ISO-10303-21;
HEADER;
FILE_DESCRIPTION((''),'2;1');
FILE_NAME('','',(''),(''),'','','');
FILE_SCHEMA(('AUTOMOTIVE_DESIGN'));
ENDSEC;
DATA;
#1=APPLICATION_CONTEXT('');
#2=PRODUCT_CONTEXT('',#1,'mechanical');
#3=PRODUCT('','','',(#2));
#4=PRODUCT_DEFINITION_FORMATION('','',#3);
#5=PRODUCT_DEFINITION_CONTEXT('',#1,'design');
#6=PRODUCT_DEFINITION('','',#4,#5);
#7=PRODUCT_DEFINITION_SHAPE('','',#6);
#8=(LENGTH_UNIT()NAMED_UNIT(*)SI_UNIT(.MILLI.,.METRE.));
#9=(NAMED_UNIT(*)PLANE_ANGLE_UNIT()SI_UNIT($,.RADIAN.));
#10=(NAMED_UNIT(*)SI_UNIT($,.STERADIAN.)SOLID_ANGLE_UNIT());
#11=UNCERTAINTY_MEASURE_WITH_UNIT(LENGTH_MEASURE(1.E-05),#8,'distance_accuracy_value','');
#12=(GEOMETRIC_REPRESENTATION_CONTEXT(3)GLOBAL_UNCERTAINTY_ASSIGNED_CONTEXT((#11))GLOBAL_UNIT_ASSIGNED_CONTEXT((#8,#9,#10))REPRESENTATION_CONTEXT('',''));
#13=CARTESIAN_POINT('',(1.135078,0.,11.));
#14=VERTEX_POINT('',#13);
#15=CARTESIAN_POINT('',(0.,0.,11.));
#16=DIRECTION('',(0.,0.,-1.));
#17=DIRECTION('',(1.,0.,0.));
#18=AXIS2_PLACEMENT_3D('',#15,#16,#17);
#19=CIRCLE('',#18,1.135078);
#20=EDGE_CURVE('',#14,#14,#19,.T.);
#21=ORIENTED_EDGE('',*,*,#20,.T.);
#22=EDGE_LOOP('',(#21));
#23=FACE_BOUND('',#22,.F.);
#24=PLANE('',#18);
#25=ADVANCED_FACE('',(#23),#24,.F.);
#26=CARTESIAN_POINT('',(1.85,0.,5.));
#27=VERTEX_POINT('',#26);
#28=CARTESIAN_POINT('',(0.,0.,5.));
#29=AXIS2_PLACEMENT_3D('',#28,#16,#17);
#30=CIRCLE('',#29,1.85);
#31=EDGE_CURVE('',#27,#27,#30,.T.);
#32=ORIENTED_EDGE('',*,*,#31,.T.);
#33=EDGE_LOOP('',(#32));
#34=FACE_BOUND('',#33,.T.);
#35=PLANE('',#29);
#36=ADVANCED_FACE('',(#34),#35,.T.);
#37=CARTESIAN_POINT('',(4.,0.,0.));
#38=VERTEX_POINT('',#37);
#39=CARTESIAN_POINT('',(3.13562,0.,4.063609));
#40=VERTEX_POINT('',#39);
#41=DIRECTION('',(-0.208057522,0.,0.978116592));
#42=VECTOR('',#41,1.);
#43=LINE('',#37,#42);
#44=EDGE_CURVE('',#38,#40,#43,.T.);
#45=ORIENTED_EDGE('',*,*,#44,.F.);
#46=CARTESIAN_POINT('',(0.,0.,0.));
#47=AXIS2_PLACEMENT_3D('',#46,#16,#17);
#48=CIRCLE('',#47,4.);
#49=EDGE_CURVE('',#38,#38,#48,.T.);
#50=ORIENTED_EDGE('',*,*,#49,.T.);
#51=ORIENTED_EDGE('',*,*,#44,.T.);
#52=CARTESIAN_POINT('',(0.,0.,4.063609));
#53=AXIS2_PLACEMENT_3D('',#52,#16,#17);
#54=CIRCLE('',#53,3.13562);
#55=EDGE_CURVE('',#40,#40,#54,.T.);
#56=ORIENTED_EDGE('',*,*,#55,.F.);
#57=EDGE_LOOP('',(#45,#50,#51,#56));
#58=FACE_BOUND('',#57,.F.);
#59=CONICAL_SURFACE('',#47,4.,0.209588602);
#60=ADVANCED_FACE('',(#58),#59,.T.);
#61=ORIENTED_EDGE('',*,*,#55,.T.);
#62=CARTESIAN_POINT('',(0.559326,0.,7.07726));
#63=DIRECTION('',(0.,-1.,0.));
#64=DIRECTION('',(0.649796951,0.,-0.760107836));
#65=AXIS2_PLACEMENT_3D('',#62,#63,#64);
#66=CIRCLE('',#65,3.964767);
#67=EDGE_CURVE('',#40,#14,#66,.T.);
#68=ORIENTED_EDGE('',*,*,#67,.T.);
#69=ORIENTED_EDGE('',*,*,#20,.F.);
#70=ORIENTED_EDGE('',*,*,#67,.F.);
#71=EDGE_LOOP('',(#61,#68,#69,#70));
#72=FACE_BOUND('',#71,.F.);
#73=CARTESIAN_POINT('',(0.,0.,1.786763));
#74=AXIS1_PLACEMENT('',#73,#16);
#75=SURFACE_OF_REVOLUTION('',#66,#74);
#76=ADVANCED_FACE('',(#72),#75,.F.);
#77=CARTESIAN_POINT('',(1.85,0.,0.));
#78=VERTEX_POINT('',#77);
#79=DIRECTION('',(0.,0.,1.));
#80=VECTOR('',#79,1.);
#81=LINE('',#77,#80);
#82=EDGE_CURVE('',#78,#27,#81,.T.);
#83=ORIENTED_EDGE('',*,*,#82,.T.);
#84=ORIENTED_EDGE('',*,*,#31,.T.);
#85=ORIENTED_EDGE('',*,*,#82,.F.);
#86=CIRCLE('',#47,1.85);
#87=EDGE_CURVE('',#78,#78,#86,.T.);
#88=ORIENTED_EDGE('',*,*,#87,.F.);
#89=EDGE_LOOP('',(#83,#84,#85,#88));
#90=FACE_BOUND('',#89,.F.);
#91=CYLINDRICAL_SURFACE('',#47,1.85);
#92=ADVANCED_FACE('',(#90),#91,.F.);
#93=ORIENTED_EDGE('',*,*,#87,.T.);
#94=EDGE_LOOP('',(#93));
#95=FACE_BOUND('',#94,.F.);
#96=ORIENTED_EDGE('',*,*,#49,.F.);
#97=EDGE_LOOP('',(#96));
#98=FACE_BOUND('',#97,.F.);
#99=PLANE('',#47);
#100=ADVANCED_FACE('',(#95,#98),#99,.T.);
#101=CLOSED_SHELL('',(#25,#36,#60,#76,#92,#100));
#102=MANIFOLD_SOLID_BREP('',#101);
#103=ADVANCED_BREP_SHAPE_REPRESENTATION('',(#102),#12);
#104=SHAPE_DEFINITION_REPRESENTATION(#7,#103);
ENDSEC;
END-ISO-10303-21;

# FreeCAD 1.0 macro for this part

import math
import FreeCAD as App
import Part
import Sketcher

doc = App.newDocument("Part")
body = doc.addObject("PartDesign::Body", "Body")

sketch1 = body.newObject("Sketcher::SketchObject", "Sketch")
sketch1.AttachmentSupport = (doc.getObject("XZ_Plane"), [""])
sketch1.MapMode = "FlatFace"
sketch1.addGeometry([
    Part.LineSegment(App.Vector(0, 11, 0), App.Vector(0, 0, 0)),
    Part.LineSegment(App.Vector(0, 0, 0), App.Vector(4, 0, 0)),
    Part.LineSegment(App.Vector(4, 0, 0), App.Vector(3.1, 4.1, 0)),
    Part.ArcOfCircle(Part.Circle(App.Vector(0.6, 7.1, 0), App.Vector(0, 0, 1), 4), math.radians(-49), math.radians(82)),
    Part.LineSegment(App.Vector(1.1, 11, 0), App.Vector(0, 11, 0)),
], False)
sketch1.addConstraint([
    Sketcher.Constraint("Coincident", 0, 2, 1, 1),
    Sketcher.Constraint("Coincident", 1, 2, 2, 1),
    Sketcher.Constraint("Coincident", 2, 2, 3, 1),
    Sketcher.Constraint("Coincident", 3, 2, 4, 1),
    Sketcher.Constraint("Coincident", 4, 2, 0, 1),
    Sketcher.Constraint("Vertical", 0),
    Sketcher.Constraint("Horizontal", 1),
    Sketcher.Constraint("Horizontal", 4),
    Sketcher.Constraint("Coincident", 0, 2, -1, 1),
    Sketcher.Constraint("DistanceX", 1, 1, 1, 2, 4.0),
    Sketcher.Constraint("DistanceY", 0, 2, 0, 1, 11.0),
    Sketcher.Constraint("Radius", 3, 3.964767),
    Sketcher.Constraint("DistanceX", 4, 2, 4, 1, 1.135078),
    Sketcher.Constraint("DistanceY", -1, 1, 3, 3, 7.07726),
    Sketcher.Constraint("DistanceX", -1, 1, 2, 2, 3.13562),
])
revolution = body.newObject("PartDesign::Revolution", "Revolution")
revolution.Profile = sketch1
revolution.ReferenceAxis = (sketch1, ["V_Axis"])
revolution.Angle = 360

sketch2 = body.newObject("Sketcher::SketchObject", "Sketch001")
sketch2.AttachmentSupport = (doc.getObject("XY_Plane"), [""])
sketch2.MapMode = "FlatFace"
sketch2.addGeometry(Part.Circle(App.Vector(0, 0, 0), App.Vector(0, 0, 1), 1.9), False)
sketch2.addConstraint([
    Sketcher.Constraint("Coincident", 0, 3, -1, 1),
    Sketcher.Constraint("Diameter", 0, 3.7),
])
pocket1 = body.newObject("PartDesign::Pocket", "Pocket")
pocket1.Profile = sketch2
pocket1.Length = 5
pocket1.Reversed = True

doc.recompute()
